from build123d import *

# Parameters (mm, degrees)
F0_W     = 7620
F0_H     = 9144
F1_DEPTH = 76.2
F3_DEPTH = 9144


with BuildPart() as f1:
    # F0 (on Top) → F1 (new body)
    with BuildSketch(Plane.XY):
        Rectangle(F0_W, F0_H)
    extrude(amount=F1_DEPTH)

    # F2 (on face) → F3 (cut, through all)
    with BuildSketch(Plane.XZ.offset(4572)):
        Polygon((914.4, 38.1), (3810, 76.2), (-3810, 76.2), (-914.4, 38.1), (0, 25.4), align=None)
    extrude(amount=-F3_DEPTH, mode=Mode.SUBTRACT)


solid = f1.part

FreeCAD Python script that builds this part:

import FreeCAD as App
import Part
import Sketcher

V = App.Vector
Q = App.Units.Quantity

doc = App.newDocument("Part")
params = doc.addObject("Spreadsheet::Sheet", "Params")
for row, (alias, value) in enumerate([
    ("sketch1_width", "300 in"),
    ("sketch1_height", "360 in"),
    ("pad1_length", "3 in"),
    ("sketch2_width", "300 in"),
], start=1):
    params.set(f"A{row}", alias)
    params.set(f"B{row}", "=" + value)
    params.setAlias(f"B{row}", alias)

body = doc.addObject("PartDesign::Body", "Body")

# Sketch on XY plane
sketch1 = doc.addObject("Sketcher::SketchObject", "Sketch")
body.addObject(sketch1)
sketch1.AttachmentSupport = (doc.XY_Plane, [""])
sketch1.MapMode = "FlatFace"
sketch1.addGeometry([
    Part.LineSegment(V(-3810, 4572, 0), V(-3810, -4572, 0)),
    Part.LineSegment(V(-3810, -4572, 0), V(3810, -4572, 0)),
    Part.LineSegment(V(3810, -4572, 0), V(3810, 4572, 0)),
    Part.LineSegment(V(3810, 4572, 0), V(-3810, 4572, 0)),
], False)
sketch1.addConstraint([
    Sketcher.Constraint("Coincident", 0, 2, 1, 1),
    Sketcher.Constraint("Coincident", 1, 2, 2, 1),
    Sketcher.Constraint("Coincident", 2, 2, 3, 1),
    Sketcher.Constraint("Coincident", 3, 2, 0, 1),
    Sketcher.Constraint("Vertical", 0),
    Sketcher.Constraint("Horizontal", 1),
    Sketcher.Constraint("Vertical", 2),
    Sketcher.Constraint("Horizontal", 3),
    Sketcher.Constraint("Symmetric", 0, 2, 2, 2, -1, 1),
    Sketcher.Constraint("DistanceX", 1, 1, 1, 2, Q("300 in")),
    Sketcher.Constraint("DistanceY", 0, 2, 0, 1, Q("360 in")),
])
sketch1.setExpression("Constraints[9]", "Params.sketch1_width")
sketch1.setExpression("Constraints[10]", "Params.sketch1_height")
pad1 = doc.addObject("PartDesign::Pad", "Pad")
body.addObject(pad1)
pad1.Profile = sketch1
pad1.setExpression("Length", "Params.pad1_length")

# Sketch on XZ plane
sketch2 = doc.addObject("Sketcher::SketchObject", "Sketch001")
body.addObject(sketch2)
sketch2.AttachmentSupport = (doc.XZ_Plane, [""])
sketch2.MapMode = "FlatFace"
sketch2.AttachmentOffset = App.Placement(V(0, 0, 180 * 25.4), App.Rotation())
sketch2.addGeometry([
    Part.LineSegment(V(914, 38, 0), V(3810, 76, 0)),  # 0
    Part.LineSegment(V(3810, 76, 0), V(-3810, 76, 0)),  # 1
    Part.LineSegment(V(-3810, 76, 0), V(-914, 38, 0)),  # 2
    Part.LineSegment(V(-914, 38, 0), V(0, 25, 0)),  # 3
    Part.LineSegment(V(0, 25, 0), V(914, 38, 0)),  # 4
], False)
sketch2.addConstraint([
    Sketcher.Constraint("Coincident", 0, 2, 1, 1),
    Sketcher.Constraint("Coincident", 1, 2, 2, 1),
    Sketcher.Constraint("Coincident", 2, 2, 3, 1),
    Sketcher.Constraint("Coincident", 3, 2, 4, 1),
    Sketcher.Constraint("Coincident", 4, 2, 0, 1),
    Sketcher.Constraint("Horizontal", 1),
    Sketcher.Constraint("Symmetric", 2, 2, 4, 2, -2),
    Sketcher.Constraint("PointOnObject", 3, 2, -2),
    Sketcher.Constraint("Equal", 0, 2),
    Sketcher.Constraint("DistanceX", 1, 2, 1, 1, Q("300 in")),
    Sketcher.Constraint("DistanceY", -1, 1, 0, 2, Q("3 in")),
    Sketcher.Constraint("DistanceX", 2, 2, -1, 1, Q("36 in")),
    Sketcher.Constraint("DistanceY", -1, 1, 3, 2, Q("1 in")),
    Sketcher.Constraint("DistanceY", -1, 1, 2, 2, Q("1.5 in")),
])
sketch2.setExpression("Constraints[9]", "Params.sketch2_width")
pocket1 = doc.addObject("PartDesign::Pocket", "Pocket")
body.addObject(pocket1)
pocket1.Profile = sketch2
pocket1.Type = "ThroughAll"

doc.recompute()
